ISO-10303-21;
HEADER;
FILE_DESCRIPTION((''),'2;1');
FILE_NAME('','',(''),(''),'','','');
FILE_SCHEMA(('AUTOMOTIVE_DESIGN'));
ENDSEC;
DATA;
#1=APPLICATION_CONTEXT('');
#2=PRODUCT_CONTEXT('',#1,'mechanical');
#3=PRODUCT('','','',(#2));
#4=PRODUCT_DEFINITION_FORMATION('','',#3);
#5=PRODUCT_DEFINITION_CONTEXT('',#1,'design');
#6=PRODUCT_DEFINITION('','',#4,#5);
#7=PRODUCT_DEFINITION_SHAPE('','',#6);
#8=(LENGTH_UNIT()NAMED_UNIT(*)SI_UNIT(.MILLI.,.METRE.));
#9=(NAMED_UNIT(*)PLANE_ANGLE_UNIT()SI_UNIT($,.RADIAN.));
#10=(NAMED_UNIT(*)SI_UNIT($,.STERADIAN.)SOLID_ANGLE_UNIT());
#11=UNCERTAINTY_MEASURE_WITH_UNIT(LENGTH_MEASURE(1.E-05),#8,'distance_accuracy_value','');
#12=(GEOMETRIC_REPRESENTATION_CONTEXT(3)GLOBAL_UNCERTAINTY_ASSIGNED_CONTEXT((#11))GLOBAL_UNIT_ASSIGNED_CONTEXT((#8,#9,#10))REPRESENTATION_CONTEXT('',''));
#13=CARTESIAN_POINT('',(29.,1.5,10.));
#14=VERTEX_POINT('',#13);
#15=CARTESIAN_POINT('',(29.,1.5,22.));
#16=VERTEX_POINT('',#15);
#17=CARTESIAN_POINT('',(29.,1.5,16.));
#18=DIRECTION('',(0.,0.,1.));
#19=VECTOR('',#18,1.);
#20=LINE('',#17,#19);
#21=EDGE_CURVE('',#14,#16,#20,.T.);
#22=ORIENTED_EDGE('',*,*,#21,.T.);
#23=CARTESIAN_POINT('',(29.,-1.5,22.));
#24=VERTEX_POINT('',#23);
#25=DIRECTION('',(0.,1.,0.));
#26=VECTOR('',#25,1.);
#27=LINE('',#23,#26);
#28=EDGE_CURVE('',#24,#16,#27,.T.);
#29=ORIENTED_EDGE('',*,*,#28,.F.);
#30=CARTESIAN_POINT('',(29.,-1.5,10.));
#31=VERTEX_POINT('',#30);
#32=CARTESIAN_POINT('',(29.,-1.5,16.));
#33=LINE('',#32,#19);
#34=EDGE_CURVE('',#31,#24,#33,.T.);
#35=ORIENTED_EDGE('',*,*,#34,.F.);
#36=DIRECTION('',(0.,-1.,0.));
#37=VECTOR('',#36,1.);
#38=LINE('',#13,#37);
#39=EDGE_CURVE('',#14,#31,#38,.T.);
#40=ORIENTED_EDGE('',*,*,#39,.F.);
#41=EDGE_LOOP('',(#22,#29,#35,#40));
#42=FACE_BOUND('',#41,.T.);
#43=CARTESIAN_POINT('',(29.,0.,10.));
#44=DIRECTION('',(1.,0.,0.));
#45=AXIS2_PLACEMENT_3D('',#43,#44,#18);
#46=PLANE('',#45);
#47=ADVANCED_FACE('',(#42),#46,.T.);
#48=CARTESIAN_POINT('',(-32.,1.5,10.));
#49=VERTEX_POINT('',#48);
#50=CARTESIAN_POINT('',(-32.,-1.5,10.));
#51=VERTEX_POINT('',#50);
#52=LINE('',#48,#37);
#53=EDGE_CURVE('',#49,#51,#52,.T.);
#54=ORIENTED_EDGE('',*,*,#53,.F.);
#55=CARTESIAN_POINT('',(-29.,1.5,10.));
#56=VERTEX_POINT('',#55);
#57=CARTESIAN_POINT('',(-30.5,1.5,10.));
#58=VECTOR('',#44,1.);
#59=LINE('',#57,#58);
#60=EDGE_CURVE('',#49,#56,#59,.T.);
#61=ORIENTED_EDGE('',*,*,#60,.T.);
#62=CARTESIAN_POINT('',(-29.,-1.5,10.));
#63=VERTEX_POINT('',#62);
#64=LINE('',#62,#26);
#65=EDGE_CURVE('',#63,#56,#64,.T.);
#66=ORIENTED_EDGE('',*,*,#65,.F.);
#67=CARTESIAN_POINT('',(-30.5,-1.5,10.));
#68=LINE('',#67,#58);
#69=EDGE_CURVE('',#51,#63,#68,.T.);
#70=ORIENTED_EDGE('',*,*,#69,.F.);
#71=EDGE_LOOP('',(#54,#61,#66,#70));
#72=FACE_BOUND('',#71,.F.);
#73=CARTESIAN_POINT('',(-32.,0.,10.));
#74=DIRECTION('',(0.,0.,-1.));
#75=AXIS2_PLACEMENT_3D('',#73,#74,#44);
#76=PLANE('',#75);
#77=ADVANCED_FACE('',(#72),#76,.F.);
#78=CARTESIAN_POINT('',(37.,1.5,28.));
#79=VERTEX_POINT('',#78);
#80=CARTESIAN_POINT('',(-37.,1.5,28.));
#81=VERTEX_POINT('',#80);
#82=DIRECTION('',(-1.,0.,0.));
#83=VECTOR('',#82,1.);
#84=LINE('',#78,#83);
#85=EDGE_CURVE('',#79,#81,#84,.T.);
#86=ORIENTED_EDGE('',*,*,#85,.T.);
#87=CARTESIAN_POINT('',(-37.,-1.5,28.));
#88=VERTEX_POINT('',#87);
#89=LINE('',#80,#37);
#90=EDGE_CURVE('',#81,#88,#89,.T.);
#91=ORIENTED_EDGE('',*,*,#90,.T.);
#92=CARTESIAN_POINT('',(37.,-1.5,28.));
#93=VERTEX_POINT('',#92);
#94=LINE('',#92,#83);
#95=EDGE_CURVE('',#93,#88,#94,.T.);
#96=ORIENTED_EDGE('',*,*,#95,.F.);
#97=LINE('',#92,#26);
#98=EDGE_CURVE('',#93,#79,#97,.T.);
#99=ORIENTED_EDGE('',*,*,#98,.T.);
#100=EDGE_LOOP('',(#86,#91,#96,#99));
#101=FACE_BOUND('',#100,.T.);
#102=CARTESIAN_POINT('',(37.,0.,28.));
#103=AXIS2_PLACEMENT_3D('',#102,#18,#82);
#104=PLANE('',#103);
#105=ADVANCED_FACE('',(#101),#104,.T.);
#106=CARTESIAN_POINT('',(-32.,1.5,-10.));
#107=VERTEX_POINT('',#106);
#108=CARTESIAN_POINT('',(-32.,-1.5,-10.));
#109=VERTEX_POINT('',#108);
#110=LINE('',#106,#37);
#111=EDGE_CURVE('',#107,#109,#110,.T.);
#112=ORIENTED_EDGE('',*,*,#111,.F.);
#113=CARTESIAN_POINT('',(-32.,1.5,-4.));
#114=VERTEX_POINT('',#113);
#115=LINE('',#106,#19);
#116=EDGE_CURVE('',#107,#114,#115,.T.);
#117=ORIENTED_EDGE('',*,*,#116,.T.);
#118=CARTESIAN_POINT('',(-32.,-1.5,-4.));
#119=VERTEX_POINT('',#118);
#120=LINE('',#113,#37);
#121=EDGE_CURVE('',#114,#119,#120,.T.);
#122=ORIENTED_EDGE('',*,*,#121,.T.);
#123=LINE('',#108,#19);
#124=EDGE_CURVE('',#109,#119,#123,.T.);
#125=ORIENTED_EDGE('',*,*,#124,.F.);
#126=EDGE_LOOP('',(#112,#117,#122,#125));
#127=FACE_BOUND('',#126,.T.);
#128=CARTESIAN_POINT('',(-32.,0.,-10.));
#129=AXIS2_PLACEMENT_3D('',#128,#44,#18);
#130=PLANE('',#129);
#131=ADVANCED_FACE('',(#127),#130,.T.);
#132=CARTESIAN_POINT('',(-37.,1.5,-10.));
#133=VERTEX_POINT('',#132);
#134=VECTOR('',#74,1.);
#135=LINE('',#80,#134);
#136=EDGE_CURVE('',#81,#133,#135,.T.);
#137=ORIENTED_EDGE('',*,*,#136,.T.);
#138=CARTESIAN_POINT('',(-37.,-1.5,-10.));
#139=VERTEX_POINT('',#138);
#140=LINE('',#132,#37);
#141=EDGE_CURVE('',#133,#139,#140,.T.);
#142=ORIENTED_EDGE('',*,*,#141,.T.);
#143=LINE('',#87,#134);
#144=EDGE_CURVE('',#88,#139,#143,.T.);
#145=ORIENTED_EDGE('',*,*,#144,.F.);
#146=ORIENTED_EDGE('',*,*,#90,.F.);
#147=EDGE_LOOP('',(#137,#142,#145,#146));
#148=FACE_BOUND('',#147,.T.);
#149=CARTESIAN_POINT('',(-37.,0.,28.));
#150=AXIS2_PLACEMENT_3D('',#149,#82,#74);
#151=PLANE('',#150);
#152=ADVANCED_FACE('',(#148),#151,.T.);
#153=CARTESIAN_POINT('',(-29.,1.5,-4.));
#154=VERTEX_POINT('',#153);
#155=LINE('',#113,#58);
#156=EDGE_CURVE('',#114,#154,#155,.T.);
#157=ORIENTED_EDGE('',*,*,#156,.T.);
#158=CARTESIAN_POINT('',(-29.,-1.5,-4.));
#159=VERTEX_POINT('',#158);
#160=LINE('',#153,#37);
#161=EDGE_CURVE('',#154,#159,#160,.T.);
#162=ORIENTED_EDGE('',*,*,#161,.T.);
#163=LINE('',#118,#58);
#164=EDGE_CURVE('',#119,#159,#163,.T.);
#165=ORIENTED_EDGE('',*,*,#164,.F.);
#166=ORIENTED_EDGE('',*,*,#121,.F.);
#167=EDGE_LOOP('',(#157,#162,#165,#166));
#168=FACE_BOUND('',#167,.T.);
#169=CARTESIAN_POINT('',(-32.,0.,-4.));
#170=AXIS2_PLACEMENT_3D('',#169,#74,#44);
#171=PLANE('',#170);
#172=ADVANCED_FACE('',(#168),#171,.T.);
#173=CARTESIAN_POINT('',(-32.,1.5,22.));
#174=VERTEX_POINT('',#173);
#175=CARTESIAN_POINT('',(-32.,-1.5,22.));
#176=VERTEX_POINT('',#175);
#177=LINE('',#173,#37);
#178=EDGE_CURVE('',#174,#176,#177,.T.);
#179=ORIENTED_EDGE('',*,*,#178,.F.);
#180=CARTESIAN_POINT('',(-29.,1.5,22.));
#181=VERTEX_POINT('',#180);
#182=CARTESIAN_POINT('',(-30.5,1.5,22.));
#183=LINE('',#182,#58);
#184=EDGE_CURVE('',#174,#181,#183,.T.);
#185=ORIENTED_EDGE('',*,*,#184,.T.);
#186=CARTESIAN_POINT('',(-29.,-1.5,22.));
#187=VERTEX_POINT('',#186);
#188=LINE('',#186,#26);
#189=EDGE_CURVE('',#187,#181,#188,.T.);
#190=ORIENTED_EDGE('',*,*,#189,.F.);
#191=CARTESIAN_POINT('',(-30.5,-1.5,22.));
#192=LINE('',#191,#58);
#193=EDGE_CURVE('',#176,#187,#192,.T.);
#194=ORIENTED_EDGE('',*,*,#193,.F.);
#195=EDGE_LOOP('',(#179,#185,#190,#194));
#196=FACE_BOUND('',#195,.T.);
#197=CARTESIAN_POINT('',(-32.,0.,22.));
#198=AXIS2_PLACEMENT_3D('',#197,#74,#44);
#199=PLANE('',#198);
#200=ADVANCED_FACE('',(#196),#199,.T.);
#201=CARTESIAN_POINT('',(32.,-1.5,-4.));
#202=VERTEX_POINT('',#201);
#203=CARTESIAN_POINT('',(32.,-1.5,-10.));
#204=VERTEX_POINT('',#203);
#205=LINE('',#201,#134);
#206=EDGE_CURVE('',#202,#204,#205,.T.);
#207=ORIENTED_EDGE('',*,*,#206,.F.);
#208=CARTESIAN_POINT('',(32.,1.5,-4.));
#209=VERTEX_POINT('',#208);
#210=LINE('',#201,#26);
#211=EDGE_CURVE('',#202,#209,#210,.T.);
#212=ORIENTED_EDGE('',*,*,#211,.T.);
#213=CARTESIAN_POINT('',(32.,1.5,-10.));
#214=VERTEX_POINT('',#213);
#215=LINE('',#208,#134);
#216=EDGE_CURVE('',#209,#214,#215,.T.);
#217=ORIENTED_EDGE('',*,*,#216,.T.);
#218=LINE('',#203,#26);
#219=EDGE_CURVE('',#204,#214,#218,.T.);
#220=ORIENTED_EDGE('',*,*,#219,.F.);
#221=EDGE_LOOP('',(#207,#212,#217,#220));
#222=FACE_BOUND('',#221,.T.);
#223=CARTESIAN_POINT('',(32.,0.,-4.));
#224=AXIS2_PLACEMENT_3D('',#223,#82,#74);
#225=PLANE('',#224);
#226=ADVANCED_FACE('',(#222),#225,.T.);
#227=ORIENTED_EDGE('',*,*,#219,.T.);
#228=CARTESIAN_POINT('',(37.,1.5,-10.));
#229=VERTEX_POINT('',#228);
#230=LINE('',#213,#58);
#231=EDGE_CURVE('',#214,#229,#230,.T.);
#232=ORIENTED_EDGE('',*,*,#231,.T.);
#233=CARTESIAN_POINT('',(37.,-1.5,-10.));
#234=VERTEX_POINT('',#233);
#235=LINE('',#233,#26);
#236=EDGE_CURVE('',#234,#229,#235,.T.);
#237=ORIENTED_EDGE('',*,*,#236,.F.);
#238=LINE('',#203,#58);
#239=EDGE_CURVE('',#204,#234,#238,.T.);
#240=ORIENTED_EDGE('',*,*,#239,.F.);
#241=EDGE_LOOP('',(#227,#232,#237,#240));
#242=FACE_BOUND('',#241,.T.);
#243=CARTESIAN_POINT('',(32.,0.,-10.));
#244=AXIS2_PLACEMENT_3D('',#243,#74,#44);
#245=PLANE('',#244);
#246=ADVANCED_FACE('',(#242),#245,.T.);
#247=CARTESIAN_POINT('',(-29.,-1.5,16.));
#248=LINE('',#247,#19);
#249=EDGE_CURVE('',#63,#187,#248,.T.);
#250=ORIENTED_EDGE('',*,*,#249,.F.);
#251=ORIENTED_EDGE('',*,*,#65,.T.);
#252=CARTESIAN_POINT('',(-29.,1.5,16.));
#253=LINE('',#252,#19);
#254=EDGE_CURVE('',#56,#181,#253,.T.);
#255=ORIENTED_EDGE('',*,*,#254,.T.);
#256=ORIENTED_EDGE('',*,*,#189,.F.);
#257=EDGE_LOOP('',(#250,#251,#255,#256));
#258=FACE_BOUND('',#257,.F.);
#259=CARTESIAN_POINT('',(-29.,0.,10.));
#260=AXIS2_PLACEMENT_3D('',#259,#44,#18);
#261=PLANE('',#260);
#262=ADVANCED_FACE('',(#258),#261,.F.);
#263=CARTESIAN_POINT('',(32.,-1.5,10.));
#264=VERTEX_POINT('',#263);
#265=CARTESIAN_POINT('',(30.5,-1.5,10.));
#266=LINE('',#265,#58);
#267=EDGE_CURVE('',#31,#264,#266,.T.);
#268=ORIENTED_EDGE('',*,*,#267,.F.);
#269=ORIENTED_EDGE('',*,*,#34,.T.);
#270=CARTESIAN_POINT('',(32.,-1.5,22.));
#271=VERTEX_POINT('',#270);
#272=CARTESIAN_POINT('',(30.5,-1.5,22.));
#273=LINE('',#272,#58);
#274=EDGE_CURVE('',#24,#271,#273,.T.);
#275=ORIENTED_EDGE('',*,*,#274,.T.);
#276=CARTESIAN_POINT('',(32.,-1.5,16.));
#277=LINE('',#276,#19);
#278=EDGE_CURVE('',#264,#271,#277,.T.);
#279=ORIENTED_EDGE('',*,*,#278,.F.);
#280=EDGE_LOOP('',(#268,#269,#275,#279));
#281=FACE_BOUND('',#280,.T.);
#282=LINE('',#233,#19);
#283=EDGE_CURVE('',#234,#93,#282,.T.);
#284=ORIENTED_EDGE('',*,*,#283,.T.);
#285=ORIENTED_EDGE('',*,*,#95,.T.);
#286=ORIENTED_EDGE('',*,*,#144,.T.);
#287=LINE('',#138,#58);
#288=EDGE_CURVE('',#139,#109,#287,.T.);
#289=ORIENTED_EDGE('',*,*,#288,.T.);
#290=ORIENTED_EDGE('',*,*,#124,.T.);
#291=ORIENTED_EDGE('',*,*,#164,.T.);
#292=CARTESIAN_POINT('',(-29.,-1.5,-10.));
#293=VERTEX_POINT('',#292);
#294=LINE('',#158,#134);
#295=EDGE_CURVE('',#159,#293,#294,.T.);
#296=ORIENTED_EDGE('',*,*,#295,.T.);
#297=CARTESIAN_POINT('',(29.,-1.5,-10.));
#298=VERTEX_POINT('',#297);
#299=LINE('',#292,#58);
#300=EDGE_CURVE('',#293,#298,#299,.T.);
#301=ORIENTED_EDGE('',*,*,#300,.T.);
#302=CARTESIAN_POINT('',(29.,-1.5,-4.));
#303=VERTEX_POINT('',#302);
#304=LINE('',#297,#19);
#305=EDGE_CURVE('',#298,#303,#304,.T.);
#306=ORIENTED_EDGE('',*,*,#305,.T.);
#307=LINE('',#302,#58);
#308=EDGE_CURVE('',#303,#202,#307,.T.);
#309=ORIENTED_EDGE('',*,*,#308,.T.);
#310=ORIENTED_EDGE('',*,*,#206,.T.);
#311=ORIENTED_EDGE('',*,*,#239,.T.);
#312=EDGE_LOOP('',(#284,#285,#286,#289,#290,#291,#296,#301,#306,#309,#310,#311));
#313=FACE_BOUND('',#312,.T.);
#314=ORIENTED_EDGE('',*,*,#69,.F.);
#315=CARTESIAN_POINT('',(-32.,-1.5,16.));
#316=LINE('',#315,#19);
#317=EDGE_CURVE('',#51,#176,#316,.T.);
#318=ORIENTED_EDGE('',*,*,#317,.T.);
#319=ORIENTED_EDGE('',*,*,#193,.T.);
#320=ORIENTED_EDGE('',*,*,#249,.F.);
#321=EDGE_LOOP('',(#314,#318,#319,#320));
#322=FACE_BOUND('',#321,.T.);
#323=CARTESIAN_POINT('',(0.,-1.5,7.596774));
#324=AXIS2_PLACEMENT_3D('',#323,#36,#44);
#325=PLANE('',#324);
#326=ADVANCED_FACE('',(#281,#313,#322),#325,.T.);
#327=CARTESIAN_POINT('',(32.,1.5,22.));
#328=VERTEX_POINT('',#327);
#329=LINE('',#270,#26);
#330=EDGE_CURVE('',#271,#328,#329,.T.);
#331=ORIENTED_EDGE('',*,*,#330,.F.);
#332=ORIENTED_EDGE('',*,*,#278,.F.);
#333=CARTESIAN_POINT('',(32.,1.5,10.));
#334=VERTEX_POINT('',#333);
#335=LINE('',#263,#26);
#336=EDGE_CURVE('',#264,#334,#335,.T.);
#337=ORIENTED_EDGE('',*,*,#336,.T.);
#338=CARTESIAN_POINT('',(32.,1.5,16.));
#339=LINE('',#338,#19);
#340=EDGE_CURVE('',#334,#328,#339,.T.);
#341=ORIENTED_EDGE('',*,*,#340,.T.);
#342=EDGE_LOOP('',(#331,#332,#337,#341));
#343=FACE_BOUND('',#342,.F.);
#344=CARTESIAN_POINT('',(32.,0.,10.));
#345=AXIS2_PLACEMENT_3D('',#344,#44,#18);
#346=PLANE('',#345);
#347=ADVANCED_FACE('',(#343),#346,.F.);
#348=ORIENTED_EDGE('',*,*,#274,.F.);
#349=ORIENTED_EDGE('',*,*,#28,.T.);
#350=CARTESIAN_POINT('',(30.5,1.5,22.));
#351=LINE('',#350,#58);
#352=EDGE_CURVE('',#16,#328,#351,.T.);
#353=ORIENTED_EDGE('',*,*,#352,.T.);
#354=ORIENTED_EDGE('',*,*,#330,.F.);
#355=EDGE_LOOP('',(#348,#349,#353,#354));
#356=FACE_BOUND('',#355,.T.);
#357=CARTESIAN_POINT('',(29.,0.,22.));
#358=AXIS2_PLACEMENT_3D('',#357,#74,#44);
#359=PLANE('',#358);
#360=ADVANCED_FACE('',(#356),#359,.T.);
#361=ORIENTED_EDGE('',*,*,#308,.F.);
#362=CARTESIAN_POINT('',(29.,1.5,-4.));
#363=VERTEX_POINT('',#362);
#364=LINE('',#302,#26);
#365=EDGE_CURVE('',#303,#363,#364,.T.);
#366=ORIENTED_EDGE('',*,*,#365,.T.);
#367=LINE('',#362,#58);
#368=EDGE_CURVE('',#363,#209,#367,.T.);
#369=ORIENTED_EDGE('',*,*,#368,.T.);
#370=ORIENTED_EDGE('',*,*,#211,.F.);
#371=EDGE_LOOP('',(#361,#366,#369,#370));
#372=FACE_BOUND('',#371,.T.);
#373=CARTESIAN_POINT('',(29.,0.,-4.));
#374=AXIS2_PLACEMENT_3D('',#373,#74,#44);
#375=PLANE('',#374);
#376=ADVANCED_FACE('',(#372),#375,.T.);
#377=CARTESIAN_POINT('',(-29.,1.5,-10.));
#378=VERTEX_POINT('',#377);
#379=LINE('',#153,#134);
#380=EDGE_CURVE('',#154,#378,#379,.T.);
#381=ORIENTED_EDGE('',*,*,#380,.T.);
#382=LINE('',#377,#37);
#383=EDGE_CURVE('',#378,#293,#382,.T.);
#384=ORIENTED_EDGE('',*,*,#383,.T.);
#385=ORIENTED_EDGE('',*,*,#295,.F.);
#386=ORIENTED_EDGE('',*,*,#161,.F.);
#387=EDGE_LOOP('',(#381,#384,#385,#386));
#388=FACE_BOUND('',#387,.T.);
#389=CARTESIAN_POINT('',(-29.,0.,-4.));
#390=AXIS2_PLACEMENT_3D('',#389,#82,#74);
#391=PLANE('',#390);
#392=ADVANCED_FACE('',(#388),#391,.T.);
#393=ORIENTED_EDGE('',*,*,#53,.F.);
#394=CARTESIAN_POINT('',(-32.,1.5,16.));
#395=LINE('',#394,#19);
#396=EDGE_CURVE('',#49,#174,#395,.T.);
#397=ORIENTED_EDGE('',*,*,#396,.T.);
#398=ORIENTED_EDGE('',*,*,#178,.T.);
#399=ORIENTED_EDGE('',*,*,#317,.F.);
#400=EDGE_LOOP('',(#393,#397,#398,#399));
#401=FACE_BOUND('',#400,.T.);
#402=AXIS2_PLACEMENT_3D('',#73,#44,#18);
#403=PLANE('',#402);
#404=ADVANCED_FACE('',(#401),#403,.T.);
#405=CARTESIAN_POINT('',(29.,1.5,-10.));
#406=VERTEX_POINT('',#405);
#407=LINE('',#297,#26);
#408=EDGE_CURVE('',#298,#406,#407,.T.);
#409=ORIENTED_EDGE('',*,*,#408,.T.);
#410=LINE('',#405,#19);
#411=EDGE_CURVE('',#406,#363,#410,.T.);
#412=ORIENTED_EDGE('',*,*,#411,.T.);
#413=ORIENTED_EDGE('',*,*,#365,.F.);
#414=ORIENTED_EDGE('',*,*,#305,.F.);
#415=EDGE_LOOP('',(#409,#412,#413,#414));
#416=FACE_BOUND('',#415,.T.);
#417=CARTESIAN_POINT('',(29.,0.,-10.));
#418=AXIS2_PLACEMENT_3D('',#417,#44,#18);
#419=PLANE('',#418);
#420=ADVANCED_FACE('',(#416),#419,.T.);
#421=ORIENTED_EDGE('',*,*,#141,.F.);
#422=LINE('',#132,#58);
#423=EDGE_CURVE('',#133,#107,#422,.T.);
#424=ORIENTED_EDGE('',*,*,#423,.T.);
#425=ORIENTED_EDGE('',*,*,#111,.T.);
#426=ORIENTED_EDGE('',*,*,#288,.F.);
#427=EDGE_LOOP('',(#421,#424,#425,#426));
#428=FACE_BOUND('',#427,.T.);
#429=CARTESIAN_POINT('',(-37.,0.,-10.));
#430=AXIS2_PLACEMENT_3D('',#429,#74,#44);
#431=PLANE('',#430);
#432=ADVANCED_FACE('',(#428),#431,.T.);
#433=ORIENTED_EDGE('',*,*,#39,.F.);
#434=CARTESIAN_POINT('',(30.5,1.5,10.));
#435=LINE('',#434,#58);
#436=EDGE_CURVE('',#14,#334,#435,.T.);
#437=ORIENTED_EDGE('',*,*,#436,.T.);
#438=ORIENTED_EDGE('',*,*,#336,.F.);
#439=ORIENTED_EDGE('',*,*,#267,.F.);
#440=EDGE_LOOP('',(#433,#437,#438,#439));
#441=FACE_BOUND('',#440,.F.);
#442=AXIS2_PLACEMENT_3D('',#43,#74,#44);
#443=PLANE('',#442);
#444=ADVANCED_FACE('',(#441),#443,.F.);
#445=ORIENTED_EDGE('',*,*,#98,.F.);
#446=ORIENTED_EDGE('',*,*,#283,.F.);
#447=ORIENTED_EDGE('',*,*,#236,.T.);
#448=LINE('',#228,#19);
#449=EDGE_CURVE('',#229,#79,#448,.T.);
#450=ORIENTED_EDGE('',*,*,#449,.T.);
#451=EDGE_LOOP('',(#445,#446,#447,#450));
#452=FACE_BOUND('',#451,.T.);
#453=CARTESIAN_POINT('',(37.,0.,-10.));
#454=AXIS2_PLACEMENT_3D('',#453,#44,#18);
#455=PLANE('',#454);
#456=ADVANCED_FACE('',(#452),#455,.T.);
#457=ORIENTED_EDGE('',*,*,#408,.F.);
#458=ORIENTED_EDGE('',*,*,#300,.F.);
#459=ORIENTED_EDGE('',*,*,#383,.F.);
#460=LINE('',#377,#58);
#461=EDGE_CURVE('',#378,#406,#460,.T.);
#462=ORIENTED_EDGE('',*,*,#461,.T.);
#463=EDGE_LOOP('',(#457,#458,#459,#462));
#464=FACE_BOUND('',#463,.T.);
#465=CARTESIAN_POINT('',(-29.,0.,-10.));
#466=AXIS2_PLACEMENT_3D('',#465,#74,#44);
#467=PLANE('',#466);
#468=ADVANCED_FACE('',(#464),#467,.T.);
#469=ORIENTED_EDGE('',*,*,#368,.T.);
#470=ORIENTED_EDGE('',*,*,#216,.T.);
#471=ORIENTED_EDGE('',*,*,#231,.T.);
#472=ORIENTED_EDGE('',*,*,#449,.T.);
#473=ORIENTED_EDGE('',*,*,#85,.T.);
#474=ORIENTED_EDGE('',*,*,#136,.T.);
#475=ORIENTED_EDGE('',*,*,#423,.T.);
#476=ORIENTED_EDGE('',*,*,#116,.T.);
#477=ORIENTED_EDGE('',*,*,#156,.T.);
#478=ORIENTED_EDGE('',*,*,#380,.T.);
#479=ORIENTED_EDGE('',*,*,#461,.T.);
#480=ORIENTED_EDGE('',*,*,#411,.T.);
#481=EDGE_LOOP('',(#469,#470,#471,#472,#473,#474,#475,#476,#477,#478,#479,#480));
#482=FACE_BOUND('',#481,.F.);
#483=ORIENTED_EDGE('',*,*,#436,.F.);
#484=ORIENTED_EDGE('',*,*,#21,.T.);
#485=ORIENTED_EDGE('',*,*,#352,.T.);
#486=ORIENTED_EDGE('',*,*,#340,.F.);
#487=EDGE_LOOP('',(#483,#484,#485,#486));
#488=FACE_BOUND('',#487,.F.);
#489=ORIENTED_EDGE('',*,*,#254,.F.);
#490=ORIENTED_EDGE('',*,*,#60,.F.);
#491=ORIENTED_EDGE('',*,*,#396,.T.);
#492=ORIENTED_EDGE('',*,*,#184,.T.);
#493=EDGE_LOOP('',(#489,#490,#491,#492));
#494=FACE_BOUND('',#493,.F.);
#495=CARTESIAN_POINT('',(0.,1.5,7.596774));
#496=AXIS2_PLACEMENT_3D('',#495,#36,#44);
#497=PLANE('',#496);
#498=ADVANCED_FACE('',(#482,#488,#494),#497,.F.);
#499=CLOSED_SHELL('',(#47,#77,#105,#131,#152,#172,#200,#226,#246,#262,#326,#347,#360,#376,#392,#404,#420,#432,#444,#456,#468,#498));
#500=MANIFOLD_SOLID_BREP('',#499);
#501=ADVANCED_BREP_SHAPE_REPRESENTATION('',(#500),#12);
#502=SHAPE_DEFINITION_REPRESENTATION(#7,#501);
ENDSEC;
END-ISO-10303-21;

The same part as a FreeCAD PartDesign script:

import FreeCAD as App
import Part
import Sketcher
from FreeCAD import Vector
Q = App.Units.Quantity


def add_polygon(sketch, points):
    """Adds a closed chain of lines whose ends are joined by coincident constraints."""
    first, n = sketch.GeometryCount, len(points)
    for a, b in zip(points, points[1:] + points[:1]):
        sketch.addGeometry(Part.LineSegment(App.Vector(*a, 0), App.Vector(*b, 0)), False)
    for i in range(n):
        sketch.addConstraint(Sketcher.Constraint("Coincident", first + i, 2, first + (i + 1) % n, 1))

doc = App.newDocument("Part")
params = doc.addObject("Spreadsheet::Sheet", "Params")
for row, (alias, value) in enumerate([
    ("sketch1_width", "74 mm"),
    ("sketch1_width2", "5 mm"),
    ("sketch1_width3", "3 mm"),
    ("sketch1_height", "38 mm"),
    ("sketch1_height2", "6 mm"),
    ("pad1_length", "3 mm"),
], start=1):
    params.set(f"A{row}", alias)
    params.set(f"B{row}", "=" + value)
    params.setAlias(f"B{row}", alias)

body = doc.addObject("PartDesign::Body", "Body")

# Sketch on XZ plane
sketch1 = body.newObject("Sketcher::SketchObject", "Sketch")
sketch1.AttachmentSupport = (doc.getObject("XZ_Plane"), [""])
sketch1.MapMode = "FlatFace"
add_polygon(sketch1, [(37, 28), (-37, 28), (-37, -10), (-32, -10), (-32, -4), (-29, -4), (-29, -10), (29, -10), (29, -4), (32, -4), (32, -10), (37, -10)])  # lines 0-11
add_polygon(sketch1, [(-29, 10), (-32, 10), (-32, 22), (-29, 22)])  # lines 12-15
add_polygon(sketch1, [(32, 10), (29, 10), (29, 22), (32, 22)])  # lines 16-19
sketch1.addConstraint([
    Sketcher.Constraint("Horizontal", 0),
    Sketcher.Constraint("Vertical", 1),
    Sketcher.Constraint("Horizontal", 2),
    Sketcher.Constraint("Vertical", 3),
    Sketcher.Constraint("Horizontal", 4),
    Sketcher.Constraint("Vertical", 5),
    Sketcher.Constraint("Horizontal", 6),
    Sketcher.Constraint("Vertical", 7),
    Sketcher.Constraint("Horizontal", 8),
    Sketcher.Constraint("Vertical", 9),
    Sketcher.Constraint("Horizontal", 10),
    Sketcher.Constraint("Vertical", 11),
    Sketcher.Constraint("Horizontal", 12),
    Sketcher.Constraint("Vertical", 13),
    Sketcher.Constraint("Horizontal", 14),
    Sketcher.Constraint("Vertical", 15),
    Sketcher.Constraint("Horizontal", 16),
    Sketcher.Constraint("Vertical", 17),
    Sketcher.Constraint("Horizontal", 18),
    Sketcher.Constraint("Vertical", 19),
    Sketcher.Constraint("Symmetric", 9, 2, 12, 2, -1, 1),
    Sketcher.Constraint("Symmetric", 6, 2, 15, 2, -1, 1),
    Sketcher.Constraint("Symmetric", 5, 2, 16, 2, -1, 1),
    Sketcher.Constraint("Symmetric", 2, 2, 19, 2, -1, 1),
    Sketcher.Constraint("Symmetric", 4, 2, 7, 2, -2),
    Sketcher.Constraint("Symmetric", 13, 2, 18, 2, -2),
    Sketcher.Constraint("Equal", 2, 10),
    Sketcher.Constraint("DistanceX", 0, 2, 0, 1, Q("74 mm")),
    Sketcher.Constraint("DistanceX", 2, 1, 2, 2, Q("5 mm")),
    Sketcher.Constraint("DistanceX", 4, 1, 4, 2, Q("3 mm")),
    Sketcher.Constraint("DistanceY", 1, 2, 1, 1, Q("38 mm")),
    Sketcher.Constraint("DistanceY", 3, 1, 3, 2, Q("6 mm")),
    Sketcher.Constraint("DistanceY", 13, 1, 13, 2, Q("12 mm")),
    Sketcher.Constraint("DistanceY", -1, 1, 0, 2, Q("28 mm")),
])
sketch1.setExpression("Constraints[47]", "Params.sketch1_width")
sketch1.setExpression("Constraints[48]", "Params.sketch1_width2")
sketch1.setExpression("Constraints[49]", "Params.sketch1_width3")
sketch1.setExpression("Constraints[50]", "Params.sketch1_height")
sketch1.setExpression("Constraints[51]", "Params.sketch1_height2")
pad1 = body.newObject("PartDesign::Pad", "Pad")
pad1.Profile = sketch1
pad1.setExpression("Length", "Params.pad1_length")
pad1.Midplane = True

doc.recompute()
